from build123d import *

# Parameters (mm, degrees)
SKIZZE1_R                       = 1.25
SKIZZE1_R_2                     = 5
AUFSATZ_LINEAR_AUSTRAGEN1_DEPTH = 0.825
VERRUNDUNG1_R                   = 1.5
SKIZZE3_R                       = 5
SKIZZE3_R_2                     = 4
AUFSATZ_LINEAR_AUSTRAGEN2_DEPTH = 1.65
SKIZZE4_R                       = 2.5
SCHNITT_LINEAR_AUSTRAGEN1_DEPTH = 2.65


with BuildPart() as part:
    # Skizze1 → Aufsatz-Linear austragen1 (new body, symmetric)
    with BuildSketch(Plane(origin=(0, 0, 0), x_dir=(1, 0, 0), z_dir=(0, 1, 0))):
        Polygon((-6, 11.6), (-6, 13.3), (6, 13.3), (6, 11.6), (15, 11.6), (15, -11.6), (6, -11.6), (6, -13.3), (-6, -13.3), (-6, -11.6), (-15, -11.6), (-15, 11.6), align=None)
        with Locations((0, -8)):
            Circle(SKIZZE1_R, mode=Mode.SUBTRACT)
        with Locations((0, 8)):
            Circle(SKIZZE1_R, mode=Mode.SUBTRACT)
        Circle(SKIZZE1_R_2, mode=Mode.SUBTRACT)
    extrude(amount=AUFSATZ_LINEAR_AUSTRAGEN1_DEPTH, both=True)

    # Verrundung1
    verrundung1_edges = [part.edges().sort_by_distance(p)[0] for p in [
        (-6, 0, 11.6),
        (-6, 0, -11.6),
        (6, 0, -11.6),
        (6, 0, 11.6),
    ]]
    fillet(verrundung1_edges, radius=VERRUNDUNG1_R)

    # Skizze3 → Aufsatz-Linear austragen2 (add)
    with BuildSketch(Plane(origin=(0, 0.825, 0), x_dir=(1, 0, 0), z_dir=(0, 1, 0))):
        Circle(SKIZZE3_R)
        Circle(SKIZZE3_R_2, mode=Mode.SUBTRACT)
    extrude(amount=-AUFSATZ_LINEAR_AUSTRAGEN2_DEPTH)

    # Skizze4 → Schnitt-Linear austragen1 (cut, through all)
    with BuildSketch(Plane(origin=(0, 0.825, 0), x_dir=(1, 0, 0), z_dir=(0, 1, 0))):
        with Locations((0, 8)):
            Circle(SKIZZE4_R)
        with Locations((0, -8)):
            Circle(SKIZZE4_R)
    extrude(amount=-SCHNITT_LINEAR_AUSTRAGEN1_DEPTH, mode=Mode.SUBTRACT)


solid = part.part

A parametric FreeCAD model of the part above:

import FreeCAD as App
import Part
import Sketcher
Q = App.Units.Quantity


def edges_at(feature, points):
    """Names of the edges that pass closest to the given points."""
    edges = feature.Shape.Edges
    near = lambda p: min(range(len(edges)), key=lambda i: edges[i].distToShape(Part.Vertex(*p))[0])
    return sorted({f"Edge{near(p) + 1}" for p in points})


def add_polygon(sketch, points):
    """Adds a closed chain of lines whose ends are joined by coincident constraints."""
    first, n = sketch.GeometryCount, len(points)
    for a, b in zip(points, points[1:] + points[:1]):
        sketch.addGeometry(Part.LineSegment(App.Vector(*a, 0), App.Vector(*b, 0)), False)
    for i in range(n):
        sketch.addConstraint(Sketcher.Constraint("Coincident", first + i, 2, first + (i + 1) % n, 1))

doc = App.newDocument("Part")
params = doc.addObject("Spreadsheet::Sheet", "Params")
for row, (alias, value) in enumerate([
    ("sketch1_diameter", "10 mm"),
    ("sketch1_diameter2", "2.5 mm"),
    ("sketch1_width", "9 mm"),
    ("sketch1_width2", "12 mm"),
    ("sketch1_height", "1.7 mm"),
    ("pad1_length", "1.65 mm"),
    ("fillet_radius", "1.5 mm"),
    ("sketch2_diameter", "10 mm"),
    ("sketch2_diameter2", "8 mm"),
    ("pad2_length", "1.65 mm"),
    ("sketch3_diameter", "5 mm"),
], start=1):
    params.set(f"A{row}", alias)
    params.set(f"B{row}", "=" + value)
    params.setAlias(f"B{row}", alias)

body = doc.addObject("PartDesign::Body", "Body")

# Sketch on XZ plane
sketch1 = body.newObject("Sketcher::SketchObject", "Sketch")
sketch1.AttachmentSupport = (doc.getObject("XZ_Plane"), [""])
sketch1.MapMode = "FlatFace"
add_polygon(sketch1, [(-6, -13.3), (-6, -11.6), (-15, -11.6), (-15, 11.6), (-6, 11.6), (-6, 13.3), (6, 13.3), (6, 11.6), (15, 11.6), (15, -11.6), (6, -11.6), (6, -13.3)])  # lines 0-11
sketch1.addGeometry(Part.Circle(App.Vector(0, 8, 0), App.Vector(0, 0, 1), 1.25), False)  # 12
sketch1.addGeometry(Part.Circle(App.Vector(0, 0, 0), App.Vector(0, 0, 1), 5), False)  # 13
sketch1.addGeometry(Part.Circle(App.Vector(0, -8, 0), App.Vector(0, 0, 1), 1.25), False)  # 14
sketch1.addConstraint([
    Sketcher.Constraint("Vertical", 0),
    Sketcher.Constraint("Horizontal", 1),
    Sketcher.Constraint("Vertical", 2),
    Sketcher.Constraint("Horizontal", 3),
    Sketcher.Constraint("Vertical", 4),
    Sketcher.Constraint("Horizontal", 5),
    Sketcher.Constraint("Vertical", 6),
    Sketcher.Constraint("Horizontal", 7),
    Sketcher.Constraint("Vertical", 8),
    Sketcher.Constraint("Horizontal", 9),
    Sketcher.Constraint("Vertical", 10),
    Sketcher.Constraint("Horizontal", 11),
    Sketcher.Constraint("Coincident", 13, 3, -1, 1),
    Sketcher.Constraint("Equal", 12, 14),
    Sketcher.Constraint("Symmetric", 12, 3, 14, 3, -1, 1),
    Sketcher.Constraint("Symmetric", 0, 2, 6, 2, -1, 1),
    Sketcher.Constraint("Symmetric", 2, 2, 8, 2, -1, 1),
    Sketcher.Constraint("Symmetric", 4, 2, 10, 2, -1, 1),
    Sketcher.Constraint("Symmetric", 3, 2, 6, 2, -2),
    Sketcher.Constraint("PointOnObject", 12, 3, -2),
    Sketcher.Constraint("Diameter", 13, Q("10 mm")),
    Sketcher.Constraint("Diameter", 12, Q("2.5 mm")),
    Sketcher.Constraint("DistanceX", 1, 2, 1, 1, Q("9 mm")),
    Sketcher.Constraint("DistanceX", 5, 1, 5, 2, Q("12 mm")),
    Sketcher.Constraint("DistanceY", 0, 1, 0, 2, Q("1.7 mm")),
    Sketcher.Constraint("DistanceY", 2, 1, 2, 2, Q("23.2 mm")),
    Sketcher.Constraint("DistanceY", -1, 1, 12, 3, Q("8 mm")),
])
sketch1.setExpression("Constraints[32]", "Params.sketch1_diameter")
sketch1.setExpression("Constraints[33]", "Params.sketch1_diameter2")
sketch1.setExpression("Constraints[34]", "Params.sketch1_width")
sketch1.setExpression("Constraints[35]", "Params.sketch1_width2")
sketch1.setExpression("Constraints[36]", "Params.sketch1_height")
pad1 = body.newObject("PartDesign::Pad", "Pad")
pad1.Profile = sketch1
pad1.setExpression("Length", "Params.pad1_length")
pad1.Midplane = True
doc.recompute()

fillet = body.newObject("PartDesign::Fillet", "Fillet")
fillet.Base = (pad1, edges_at(pad1, [
    (-6, 0, 11.6),
    (-6, 0, -11.6),
    (6, 0, -11.6),
    (6, 0, 11.6),
]))
fillet.setExpression("Radius", "Params.fillet_radius")

# Sketch on XZ plane
sketch2 = body.newObject("Sketcher::SketchObject", "Sketch001")
sketch2.AttachmentSupport = (doc.getObject("XZ_Plane"), [""])
sketch2.MapMode = "FlatFace"
sketch2.AttachmentOffset = App.Placement(App.Vector(0, 0, -0.825), App.Rotation())
sketch2.addGeometry([
    Part.Circle(App.Vector(0, 0, 0), App.Vector(0, 0, 1), 5),
    Part.Circle(App.Vector(0, 0, 0), App.Vector(0, 0, 1), 4),
], False)
sketch2.addConstraint([
    Sketcher.Constraint("Coincident", 0, 3, -1, 1),
    Sketcher.Constraint("Coincident", 1, 3, -1, 1),
    Sketcher.Constraint("Diameter", 0, Q("10 mm")),
    Sketcher.Constraint("Diameter", 1, Q("8 mm")),
])
sketch2.setExpression("Constraints[2]", "Params.sketch2_diameter")
sketch2.setExpression("Constraints[3]", "Params.sketch2_diameter2")
pad2 = body.newObject("PartDesign::Pad", "Pad001")
pad2.Profile = sketch2
pad2.setExpression("Length", "Params.pad2_length")

# Sketch on XZ plane
sketch3 = body.newObject("Sketcher::SketchObject", "Sketch002")
sketch3.AttachmentSupport = (doc.getObject("XZ_Plane"), [""])
sketch3.MapMode = "FlatFace"
sketch3.AttachmentOffset = App.Placement(App.Vector(0, 0, -0.825), App.Rotation())
sketch3.addGeometry([
    Part.Circle(App.Vector(0, -8, 0), App.Vector(0, 0, 1), 2.5),
    Part.Circle(App.Vector(0, 8, 0), App.Vector(0, 0, 1), 2.5),
], False)
sketch3.addConstraint([
    Sketcher.Constraint("Equal", 0, 1),
    Sketcher.Constraint("Symmetric", 0, 3, 1, 3, -1, 1),
    Sketcher.Constraint("PointOnObject", 0, 3, -2),
    Sketcher.Constraint("Diameter", 0, Q("5 mm")),
    Sketcher.Constraint("DistanceY", 0, 3, -1, 1, Q("8 mm")),
])
sketch3.setExpression("Constraints[3]", "Params.sketch3_diameter")
pocket1 = body.newObject("PartDesign::Pocket", "Pocket")
pocket1.Profile = sketch3
pocket1.Type = "ThroughAll"
pocket1.Reversed = True

doc.recompute()
